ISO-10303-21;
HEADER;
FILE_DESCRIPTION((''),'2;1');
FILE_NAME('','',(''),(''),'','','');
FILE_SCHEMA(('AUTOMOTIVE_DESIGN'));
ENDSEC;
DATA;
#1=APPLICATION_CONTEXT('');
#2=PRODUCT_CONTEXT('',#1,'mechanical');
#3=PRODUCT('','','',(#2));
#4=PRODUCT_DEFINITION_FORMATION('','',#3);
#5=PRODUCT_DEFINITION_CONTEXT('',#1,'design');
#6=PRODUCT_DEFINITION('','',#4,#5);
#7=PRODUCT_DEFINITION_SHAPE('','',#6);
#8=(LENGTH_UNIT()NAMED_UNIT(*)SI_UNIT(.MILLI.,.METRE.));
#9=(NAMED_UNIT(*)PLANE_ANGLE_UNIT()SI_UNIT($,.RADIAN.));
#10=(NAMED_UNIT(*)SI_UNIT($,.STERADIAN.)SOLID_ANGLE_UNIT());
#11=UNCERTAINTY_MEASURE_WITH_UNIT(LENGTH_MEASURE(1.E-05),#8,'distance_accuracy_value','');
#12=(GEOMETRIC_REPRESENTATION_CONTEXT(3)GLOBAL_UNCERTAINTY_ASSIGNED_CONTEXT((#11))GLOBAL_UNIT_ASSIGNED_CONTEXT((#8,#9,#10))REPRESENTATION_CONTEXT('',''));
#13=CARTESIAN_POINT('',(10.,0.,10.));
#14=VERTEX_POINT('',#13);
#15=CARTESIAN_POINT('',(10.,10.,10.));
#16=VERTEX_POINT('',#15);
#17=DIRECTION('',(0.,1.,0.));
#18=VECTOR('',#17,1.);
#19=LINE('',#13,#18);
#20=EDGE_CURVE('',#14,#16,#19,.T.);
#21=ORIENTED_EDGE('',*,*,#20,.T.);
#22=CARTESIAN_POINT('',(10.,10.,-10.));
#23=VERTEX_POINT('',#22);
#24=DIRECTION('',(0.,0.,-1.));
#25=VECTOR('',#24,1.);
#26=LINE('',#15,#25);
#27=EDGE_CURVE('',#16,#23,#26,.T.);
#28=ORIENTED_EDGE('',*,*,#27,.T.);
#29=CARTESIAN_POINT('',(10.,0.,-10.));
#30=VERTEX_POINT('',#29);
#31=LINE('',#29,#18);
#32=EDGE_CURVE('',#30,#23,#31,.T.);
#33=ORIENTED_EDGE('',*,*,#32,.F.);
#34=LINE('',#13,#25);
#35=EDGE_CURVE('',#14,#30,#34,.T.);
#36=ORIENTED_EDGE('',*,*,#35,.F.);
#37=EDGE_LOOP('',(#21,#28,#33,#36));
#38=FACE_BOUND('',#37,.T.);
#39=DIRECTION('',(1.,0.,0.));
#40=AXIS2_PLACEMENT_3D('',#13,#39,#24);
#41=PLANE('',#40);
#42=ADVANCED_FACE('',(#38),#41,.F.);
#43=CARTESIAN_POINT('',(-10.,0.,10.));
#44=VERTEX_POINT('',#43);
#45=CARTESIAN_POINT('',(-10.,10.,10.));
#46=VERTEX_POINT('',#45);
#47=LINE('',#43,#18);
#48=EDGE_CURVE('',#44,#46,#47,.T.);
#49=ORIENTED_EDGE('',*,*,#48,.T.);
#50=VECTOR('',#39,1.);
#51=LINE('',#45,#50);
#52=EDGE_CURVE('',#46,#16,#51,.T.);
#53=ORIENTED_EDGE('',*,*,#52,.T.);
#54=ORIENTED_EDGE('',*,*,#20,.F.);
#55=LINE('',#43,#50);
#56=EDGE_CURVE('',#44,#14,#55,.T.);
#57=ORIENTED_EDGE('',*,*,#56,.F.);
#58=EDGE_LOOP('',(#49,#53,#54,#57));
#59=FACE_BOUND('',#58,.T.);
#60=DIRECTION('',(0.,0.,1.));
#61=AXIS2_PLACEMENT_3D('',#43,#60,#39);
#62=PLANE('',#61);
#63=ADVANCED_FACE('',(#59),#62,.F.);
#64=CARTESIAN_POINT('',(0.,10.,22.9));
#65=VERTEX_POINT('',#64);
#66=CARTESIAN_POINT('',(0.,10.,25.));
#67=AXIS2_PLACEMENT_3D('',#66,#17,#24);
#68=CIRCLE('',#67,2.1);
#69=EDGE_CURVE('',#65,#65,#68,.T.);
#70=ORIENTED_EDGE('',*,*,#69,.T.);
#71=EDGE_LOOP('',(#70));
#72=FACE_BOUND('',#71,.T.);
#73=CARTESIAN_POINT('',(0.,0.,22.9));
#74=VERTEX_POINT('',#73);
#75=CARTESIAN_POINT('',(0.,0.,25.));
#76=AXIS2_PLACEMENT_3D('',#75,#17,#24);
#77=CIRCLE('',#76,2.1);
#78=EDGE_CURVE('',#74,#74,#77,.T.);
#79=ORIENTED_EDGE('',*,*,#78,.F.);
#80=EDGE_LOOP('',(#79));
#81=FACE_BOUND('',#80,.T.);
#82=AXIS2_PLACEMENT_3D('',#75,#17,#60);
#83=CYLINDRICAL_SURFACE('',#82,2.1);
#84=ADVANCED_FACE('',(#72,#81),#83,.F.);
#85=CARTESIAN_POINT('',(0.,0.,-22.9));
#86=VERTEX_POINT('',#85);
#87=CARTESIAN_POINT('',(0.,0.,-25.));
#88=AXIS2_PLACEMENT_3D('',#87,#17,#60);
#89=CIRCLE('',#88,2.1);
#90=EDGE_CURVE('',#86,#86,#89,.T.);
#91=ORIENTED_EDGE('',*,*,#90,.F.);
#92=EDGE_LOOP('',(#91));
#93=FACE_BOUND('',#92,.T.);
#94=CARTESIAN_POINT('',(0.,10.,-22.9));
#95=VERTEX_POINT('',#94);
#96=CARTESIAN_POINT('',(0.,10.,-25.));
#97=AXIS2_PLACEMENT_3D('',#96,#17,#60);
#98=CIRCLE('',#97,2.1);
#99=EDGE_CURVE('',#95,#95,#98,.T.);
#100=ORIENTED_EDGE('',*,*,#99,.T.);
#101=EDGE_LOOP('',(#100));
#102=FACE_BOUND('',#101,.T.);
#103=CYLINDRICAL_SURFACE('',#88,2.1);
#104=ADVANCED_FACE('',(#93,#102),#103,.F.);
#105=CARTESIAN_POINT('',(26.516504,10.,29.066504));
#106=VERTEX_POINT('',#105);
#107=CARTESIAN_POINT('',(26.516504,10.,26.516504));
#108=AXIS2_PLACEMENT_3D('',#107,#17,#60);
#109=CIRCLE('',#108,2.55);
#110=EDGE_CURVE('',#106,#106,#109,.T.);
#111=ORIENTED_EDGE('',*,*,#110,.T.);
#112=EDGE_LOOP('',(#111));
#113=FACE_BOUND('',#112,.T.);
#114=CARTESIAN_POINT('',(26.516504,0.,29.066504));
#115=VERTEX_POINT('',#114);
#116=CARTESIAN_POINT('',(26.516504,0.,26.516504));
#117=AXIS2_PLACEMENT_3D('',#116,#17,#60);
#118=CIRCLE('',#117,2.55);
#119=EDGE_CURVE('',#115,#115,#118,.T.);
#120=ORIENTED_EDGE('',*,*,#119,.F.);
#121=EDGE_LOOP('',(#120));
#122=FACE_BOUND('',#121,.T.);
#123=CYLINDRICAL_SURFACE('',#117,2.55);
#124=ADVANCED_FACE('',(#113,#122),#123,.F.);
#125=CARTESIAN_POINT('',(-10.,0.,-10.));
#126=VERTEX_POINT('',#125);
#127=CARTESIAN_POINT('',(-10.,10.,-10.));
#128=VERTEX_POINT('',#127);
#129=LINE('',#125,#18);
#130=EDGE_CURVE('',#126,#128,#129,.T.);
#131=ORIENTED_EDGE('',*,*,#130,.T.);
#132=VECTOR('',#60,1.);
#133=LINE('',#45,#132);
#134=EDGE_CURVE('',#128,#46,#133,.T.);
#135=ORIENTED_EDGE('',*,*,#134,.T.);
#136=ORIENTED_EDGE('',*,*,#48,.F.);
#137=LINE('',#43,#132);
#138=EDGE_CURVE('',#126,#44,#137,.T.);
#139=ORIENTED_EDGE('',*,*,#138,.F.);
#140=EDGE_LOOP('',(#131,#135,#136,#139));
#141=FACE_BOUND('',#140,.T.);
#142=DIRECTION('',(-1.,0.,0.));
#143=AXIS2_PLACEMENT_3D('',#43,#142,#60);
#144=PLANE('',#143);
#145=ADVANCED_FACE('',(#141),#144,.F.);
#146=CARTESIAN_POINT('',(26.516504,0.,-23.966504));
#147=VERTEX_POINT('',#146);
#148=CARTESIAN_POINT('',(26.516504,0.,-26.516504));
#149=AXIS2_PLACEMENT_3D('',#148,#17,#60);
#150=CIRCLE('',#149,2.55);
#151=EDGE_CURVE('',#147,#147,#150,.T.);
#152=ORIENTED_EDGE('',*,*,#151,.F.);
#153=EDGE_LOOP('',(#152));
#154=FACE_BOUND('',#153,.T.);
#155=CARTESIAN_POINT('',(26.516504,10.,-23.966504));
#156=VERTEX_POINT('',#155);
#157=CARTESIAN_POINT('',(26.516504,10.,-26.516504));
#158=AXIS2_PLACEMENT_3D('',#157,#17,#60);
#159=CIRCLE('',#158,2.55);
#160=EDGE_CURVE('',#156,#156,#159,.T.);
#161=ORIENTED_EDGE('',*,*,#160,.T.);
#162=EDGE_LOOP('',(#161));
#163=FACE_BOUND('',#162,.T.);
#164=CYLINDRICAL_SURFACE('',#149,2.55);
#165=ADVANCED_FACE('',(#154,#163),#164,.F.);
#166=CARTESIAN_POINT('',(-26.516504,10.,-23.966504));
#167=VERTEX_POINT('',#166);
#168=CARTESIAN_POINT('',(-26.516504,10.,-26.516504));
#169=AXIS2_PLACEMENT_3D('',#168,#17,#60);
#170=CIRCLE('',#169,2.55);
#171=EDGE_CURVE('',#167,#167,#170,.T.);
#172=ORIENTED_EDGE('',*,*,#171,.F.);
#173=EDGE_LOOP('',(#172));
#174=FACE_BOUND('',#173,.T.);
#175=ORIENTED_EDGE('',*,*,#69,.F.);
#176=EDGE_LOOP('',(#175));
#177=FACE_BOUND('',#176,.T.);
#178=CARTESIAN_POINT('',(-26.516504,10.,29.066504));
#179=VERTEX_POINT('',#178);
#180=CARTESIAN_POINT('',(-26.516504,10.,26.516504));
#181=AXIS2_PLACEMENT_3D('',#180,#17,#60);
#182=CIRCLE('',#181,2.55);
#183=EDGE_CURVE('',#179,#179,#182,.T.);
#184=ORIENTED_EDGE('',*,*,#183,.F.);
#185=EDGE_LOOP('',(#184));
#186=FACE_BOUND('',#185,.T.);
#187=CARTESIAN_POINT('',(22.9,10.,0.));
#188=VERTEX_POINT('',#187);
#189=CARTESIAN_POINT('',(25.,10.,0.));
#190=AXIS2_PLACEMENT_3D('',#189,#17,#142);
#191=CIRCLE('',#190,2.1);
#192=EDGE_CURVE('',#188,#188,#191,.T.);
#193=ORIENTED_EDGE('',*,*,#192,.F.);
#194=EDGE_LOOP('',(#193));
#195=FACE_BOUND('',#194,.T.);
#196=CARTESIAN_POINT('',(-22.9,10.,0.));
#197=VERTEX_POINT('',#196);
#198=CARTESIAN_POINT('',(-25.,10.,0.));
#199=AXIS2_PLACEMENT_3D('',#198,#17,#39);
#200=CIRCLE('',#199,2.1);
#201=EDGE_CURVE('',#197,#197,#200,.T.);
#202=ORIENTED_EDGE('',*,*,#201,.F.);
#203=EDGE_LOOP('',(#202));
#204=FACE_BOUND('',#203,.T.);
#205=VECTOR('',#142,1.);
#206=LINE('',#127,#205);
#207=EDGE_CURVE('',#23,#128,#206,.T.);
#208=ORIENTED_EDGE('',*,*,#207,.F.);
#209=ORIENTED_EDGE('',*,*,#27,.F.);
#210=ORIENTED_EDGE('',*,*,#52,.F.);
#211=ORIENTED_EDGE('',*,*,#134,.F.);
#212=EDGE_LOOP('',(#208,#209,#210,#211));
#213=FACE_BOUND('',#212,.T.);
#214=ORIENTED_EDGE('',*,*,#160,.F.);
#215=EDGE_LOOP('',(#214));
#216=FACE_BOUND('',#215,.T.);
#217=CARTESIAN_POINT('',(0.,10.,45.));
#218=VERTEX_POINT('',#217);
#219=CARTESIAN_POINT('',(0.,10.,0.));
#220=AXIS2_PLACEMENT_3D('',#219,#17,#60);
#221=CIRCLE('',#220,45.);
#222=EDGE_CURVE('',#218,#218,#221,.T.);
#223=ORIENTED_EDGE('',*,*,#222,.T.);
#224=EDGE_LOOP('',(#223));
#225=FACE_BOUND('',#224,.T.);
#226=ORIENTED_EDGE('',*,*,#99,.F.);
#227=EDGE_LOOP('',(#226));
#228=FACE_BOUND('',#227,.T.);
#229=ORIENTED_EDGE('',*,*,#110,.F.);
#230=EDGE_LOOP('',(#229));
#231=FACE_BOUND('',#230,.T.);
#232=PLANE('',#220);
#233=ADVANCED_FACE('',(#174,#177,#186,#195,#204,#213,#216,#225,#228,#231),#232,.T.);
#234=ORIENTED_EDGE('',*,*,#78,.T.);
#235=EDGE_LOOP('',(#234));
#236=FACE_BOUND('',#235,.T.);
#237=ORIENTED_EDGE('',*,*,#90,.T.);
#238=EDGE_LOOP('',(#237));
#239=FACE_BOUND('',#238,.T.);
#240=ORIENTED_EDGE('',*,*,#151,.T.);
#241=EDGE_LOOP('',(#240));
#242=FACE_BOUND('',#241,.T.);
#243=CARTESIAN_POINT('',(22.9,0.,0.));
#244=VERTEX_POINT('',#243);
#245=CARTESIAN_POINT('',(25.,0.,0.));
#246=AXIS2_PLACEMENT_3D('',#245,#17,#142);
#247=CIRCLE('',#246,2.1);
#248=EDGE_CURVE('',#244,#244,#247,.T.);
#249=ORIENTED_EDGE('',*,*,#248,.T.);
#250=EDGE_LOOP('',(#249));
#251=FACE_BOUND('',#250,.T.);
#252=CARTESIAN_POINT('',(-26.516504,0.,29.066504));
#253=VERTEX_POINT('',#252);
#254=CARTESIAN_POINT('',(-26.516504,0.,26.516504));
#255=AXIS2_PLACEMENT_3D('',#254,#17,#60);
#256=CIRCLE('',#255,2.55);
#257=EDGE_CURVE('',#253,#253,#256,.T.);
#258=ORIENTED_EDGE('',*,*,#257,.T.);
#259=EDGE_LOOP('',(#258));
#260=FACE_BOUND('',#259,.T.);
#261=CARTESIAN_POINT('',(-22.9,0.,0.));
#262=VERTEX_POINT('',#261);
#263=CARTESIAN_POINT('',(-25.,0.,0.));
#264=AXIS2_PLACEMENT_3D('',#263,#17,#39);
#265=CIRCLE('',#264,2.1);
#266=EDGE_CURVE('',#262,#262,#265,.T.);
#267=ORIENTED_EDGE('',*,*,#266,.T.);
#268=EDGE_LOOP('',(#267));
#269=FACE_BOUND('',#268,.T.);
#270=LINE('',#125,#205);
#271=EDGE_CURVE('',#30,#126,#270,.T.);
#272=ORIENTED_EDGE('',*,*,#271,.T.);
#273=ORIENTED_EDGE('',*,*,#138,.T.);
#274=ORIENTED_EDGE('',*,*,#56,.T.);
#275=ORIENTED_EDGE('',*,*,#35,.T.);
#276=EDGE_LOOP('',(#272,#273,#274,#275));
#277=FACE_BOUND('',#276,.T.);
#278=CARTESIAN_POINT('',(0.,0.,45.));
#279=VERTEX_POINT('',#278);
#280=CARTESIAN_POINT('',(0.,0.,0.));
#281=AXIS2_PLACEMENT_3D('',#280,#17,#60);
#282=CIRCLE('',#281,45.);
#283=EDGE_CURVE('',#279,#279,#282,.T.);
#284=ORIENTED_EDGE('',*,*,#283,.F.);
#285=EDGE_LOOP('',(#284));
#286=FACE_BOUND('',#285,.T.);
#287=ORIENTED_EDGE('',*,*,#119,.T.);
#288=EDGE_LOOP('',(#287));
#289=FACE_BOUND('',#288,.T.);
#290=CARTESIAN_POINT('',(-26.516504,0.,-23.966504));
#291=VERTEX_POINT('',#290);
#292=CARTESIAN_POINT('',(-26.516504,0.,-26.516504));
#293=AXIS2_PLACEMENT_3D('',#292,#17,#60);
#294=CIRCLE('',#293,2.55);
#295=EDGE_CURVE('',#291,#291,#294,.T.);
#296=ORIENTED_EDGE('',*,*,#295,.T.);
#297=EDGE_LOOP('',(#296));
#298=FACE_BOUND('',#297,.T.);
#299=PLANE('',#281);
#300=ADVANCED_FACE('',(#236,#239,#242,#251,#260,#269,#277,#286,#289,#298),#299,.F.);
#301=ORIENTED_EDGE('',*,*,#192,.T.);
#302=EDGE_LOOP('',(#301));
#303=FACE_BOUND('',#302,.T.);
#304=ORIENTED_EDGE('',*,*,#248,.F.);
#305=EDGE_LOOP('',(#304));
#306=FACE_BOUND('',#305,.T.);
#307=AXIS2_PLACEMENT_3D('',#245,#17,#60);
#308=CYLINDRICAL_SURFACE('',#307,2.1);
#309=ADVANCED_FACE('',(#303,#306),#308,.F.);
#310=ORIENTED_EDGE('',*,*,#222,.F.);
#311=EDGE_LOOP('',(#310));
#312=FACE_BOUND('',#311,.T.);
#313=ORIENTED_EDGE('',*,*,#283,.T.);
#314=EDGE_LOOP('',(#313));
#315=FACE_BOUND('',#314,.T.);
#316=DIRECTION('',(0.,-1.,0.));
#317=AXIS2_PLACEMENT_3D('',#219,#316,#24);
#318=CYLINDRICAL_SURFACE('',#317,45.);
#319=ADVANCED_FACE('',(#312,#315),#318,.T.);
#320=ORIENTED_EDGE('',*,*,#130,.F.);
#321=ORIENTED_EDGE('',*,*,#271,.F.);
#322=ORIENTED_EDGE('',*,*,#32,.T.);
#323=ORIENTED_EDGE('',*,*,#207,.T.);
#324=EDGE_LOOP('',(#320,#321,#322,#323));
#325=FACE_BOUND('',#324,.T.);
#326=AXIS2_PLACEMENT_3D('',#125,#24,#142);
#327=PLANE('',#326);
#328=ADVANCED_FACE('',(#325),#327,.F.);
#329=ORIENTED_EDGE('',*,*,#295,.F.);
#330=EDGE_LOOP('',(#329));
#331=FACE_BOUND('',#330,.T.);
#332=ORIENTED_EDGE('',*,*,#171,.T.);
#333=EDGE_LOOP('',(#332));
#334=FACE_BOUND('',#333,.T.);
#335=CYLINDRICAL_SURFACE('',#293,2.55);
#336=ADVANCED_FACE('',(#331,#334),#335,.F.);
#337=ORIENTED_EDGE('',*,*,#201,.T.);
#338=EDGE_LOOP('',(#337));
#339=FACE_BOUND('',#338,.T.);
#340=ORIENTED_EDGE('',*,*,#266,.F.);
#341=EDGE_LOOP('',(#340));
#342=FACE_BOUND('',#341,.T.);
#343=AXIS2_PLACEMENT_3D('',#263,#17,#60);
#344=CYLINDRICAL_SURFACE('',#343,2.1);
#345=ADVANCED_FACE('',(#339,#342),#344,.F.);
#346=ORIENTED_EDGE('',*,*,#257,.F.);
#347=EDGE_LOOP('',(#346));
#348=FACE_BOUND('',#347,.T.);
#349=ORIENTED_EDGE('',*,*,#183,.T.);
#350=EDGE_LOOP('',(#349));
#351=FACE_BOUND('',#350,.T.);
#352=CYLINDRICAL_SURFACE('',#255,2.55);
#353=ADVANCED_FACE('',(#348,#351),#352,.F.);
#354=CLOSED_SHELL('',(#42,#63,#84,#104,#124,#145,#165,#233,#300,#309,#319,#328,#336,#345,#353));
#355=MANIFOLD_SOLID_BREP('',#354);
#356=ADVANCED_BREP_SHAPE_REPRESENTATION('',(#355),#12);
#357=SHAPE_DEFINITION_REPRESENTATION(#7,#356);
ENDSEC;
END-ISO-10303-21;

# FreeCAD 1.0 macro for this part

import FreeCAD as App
import Part
import Sketcher
from FreeCAD import Vector
Q = App.Units.Quantity

doc = App.newDocument("Part")
body = doc.addObject("PartDesign::Body", "Body")

sketch1 = body.newObject("Sketcher::SketchObject", "Sketch")
sketch1.AttachmentSupport = (doc.getObject("XZ_Plane"), [""])
sketch1.MapMode = "FlatFace"
sketch1.addGeometry(Part.Circle(Vector(0, 0, 0), Vector(0, 0, 1), 45), False)
sketch1.addConstraint(Sketcher.Constraint("Coincident", 0, 3, -1, 1))
sketch1.addConstraint(Sketcher.Constraint("Diameter", 0, Q("90 mm")))
pad1 = body.newObject("PartDesign::Pad", "Pad")
pad1.Profile = sketch1
pad1.Length = 10
pad1.Reversed = True

sketch2 = body.newObject("Sketcher::SketchObject", "Sketch001")
sketch2.AttachmentSupport = (doc.getObject("XZ_Plane"), [""])
sketch2.MapMode = "FlatFace"
sketch2.AttachmentOffset = App.Placement(Vector(0, 0, -10), App.Rotation())
sketch2.addGeometry(Part.Circle(Vector(0, -25, 0), Vector(0, 0, 1), 2.1), False)
sketch2.addConstraint(Sketcher.Constraint("PointOnObject", 0, 3, -2))
sketch2.addConstraint(Sketcher.Constraint("Diameter", 0, Q("4.2 mm")))
sketch2.addConstraint(Sketcher.Constraint("DistanceY", 0, 3, -1, 1, Q("25 mm")))
pocket1 = body.newObject("PartDesign::Pocket", "Pocket")
pocket1.Profile = sketch2
pocket1.Type = "ThroughAll"
pocket1.Reversed = True
doc.recompute()

polarpattern = body.newObject("PartDesign::PolarPattern", "PolarPattern")
polarpattern.Originals = [pocket1]
polarpattern.Axis = (doc.getObject("Y_Axis"), [""])
polarpattern.Angle = 360
polarpattern.Occurrences = 4
body.Tip = polarpattern

sketch3 = body.newObject("Sketcher::SketchObject", "Sketch002")
sketch3.AttachmentSupport = (doc.getObject("XZ_Plane"), [""])
sketch3.MapMode = "FlatFace"
sketch3.AttachmentOffset = App.Placement(Vector(0, 0, -10), App.Rotation())
sketch3.addGeometry(Part.LineSegment(Vector(-10, -10, 0), Vector(-10, 10, 0)), False)
sketch3.addGeometry(Part.LineSegment(Vector(-10, 10, 0), Vector(10, 10, 0)), False)
sketch3.addGeometry(Part.LineSegment(Vector(10, 10, 0), Vector(10, -10, 0)), False)
sketch3.addGeometry(Part.LineSegment(Vector(10, -10, 0), Vector(-10, -10, 0)), False)
sketch3.addConstraint(Sketcher.Constraint("Coincident", 0, 2, 1, 1))
sketch3.addConstraint(Sketcher.Constraint("Coincident", 1, 2, 2, 1))
sketch3.addConstraint(Sketcher.Constraint("Coincident", 2, 2, 3, 1))
sketch3.addConstraint(Sketcher.Constraint("Coincident", 3, 2, 0, 1))
sketch3.addConstraint(Sketcher.Constraint("Vertical", 0))
sketch3.addConstraint(Sketcher.Constraint("Horizontal", 1))
sketch3.addConstraint(Sketcher.Constraint("Vertical", 2))
sketch3.addConstraint(Sketcher.Constraint("Horizontal", 3))
sketch3.addConstraint(Sketcher.Constraint("Symmetric", 0, 2, 2, 2, -1, 1))
sketch3.addConstraint(Sketcher.Constraint("Equal", 3, 0))
sketch3.addConstraint(Sketcher.Constraint("DistanceX", 1, 1, 1, 2, Q("20 mm")))
pocket2 = body.newObject("PartDesign::Pocket", "Pocket001")
pocket2.Profile = sketch3
pocket2.Length = 10
pocket2.Reversed = True

sketch4 = body.newObject("Sketcher::SketchObject", "Sketch003")
sketch4.AttachmentSupport = (doc.getObject("XZ_Plane"), [""])
sketch4.MapMode = "FlatFace"
sketch4.AttachmentOffset = App.Placement(Vector(0, 0, -10), App.Rotation())
sketch4.addGeometry(Part.Circle(Vector(-26.5, -26.5, 0), Vector(0, 0, 1), 2.5), False)
sketch4.addGeometry(Part.Circle(Vector(26.5, -26.5, 0), Vector(0, 0, 1), 2.5), False)
sketch4.addGeometry(Part.Circle(Vector(26.5, 26.5, 0), Vector(0, 0, 1), 2.5), False)
sketch4.addGeometry(Part.Circle(Vector(-26.5, 26.5, 0), Vector(0, 0, 1), 2.5), False)
sketch4.addConstraint(Sketcher.Constraint("Equal", 0, 1))
sketch4.addConstraint(Sketcher.Constraint("Equal", 1, 2))
sketch4.addConstraint(Sketcher.Constraint("Equal", 2, 3))
sketch4.addConstraint(Sketcher.Constraint("Symmetric", 0, 3, 2, 3, -1, 1))
sketch4.addConstraint(Sketcher.Constraint("Symmetric", 1, 3, 3, 3, -1, 1))
sketch4.addConstraint(Sketcher.Constraint("Symmetric", 0, 3, 1, 3, -2))
sketch4.addConstraint(Sketcher.Constraint("Diameter", 0, Q("5.1 mm")))
sketch4.addConstraint(Sketcher.Constraint("DistanceX", 0, 3, 1, 3, Q("53.033009 mm")))
sketch4.addConstraint(Sketcher.Constraint("DistanceY", 1, 3, 2, 3, Q("53.033009 mm")))
pocket3 = body.newObject("PartDesign::Pocket", "Pocket002")
pocket3.Profile = sketch4
pocket3.Type = "ThroughAll"
pocket3.Reversed = True

doc.recompute()
